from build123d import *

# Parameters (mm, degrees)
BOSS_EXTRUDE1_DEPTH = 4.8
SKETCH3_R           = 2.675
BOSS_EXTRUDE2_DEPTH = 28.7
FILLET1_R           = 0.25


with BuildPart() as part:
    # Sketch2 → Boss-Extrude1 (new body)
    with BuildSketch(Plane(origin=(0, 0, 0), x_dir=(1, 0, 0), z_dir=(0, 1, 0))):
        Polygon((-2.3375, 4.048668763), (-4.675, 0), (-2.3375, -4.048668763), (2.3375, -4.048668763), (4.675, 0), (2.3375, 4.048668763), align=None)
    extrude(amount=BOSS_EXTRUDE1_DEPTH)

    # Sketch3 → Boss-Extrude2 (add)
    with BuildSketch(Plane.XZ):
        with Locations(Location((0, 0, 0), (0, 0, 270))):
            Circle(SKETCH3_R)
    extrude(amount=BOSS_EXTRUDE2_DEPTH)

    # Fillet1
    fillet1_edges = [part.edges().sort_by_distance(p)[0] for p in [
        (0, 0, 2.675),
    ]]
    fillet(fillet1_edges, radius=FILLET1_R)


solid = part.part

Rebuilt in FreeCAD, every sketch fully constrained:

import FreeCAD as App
import Part
import Sketcher
from FreeCAD import Vector
Q = App.Units.Quantity


def edges_at(feature, points):
    """Names of the edges that pass closest to the given points."""
    edges = feature.Shape.Edges
    near = lambda p: min(range(len(edges)), key=lambda i: edges[i].distToShape(Part.Vertex(*p))[0])
    return sorted({f"Edge{near(p) + 1}" for p in points})

doc = App.newDocument("Part")
body = doc.addObject("PartDesign::Body", "Body")

sketch1 = body.newObject("Sketcher::SketchObject", "Sketch")
sketch1.AttachmentSupport = (doc.getObject("XZ_Plane"), [""])
sketch1.MapMode = "FlatFace"
sketch1.addGeometry(Part.LineSegment(Vector(-2.3, -4, 0), Vector(-4.7, 0, 0)), False)
sketch1.addGeometry(Part.LineSegment(Vector(-4.7, 0, 0), Vector(-2.3, 4, 0)), False)
sketch1.addGeometry(Part.LineSegment(Vector(-2.3, 4, 0), Vector(2.3, 4, 0)), False)
sketch1.addGeometry(Part.LineSegment(Vector(2.3, 4, 0), Vector(4.7, 0, 0)), False)
sketch1.addGeometry(Part.LineSegment(Vector(4.7, 0, 0), Vector(2.3, -4, 0)), False)
sketch1.addGeometry(Part.LineSegment(Vector(2.3, -4, 0), Vector(-2.3, -4, 0)), False)
sketch1.addConstraint(Sketcher.Constraint("Coincident", 0, 2, 1, 1))
sketch1.addConstraint(Sketcher.Constraint("Coincident", 1, 2, 2, 1))
sketch1.addConstraint(Sketcher.Constraint("Coincident", 2, 2, 3, 1))
sketch1.addConstraint(Sketcher.Constraint("Coincident", 3, 2, 4, 1))
sketch1.addConstraint(Sketcher.Constraint("Coincident", 4, 2, 5, 1))
sketch1.addConstraint(Sketcher.Constraint("Coincident", 5, 2, 0, 1))
sketch1.addConstraint(Sketcher.Constraint("Horizontal", 2))
sketch1.addConstraint(Sketcher.Constraint("Horizontal", 5))
sketch1.addConstraint(Sketcher.Constraint("Symmetric", 0, 2, 3, 2, -1, 1))
sketch1.addConstraint(Sketcher.Constraint("Symmetric", 1, 2, 4, 2, -1, 1))
sketch1.addConstraint(Sketcher.Constraint("PointOnObject", 0, 2, -1))
sketch1.addConstraint(Sketcher.Constraint("Parallel", 0, 3))
sketch1.addConstraint(Sketcher.Constraint("Vertical", 2, 2, 4, 2))
sketch1.addConstraint(Sketcher.Constraint("Angle", 0, Q("120 deg")))
sketch1.addConstraint(Sketcher.Constraint("DistanceX", 2, 1, 2, 2, 4.675))
sketch1.addConstraint(Sketcher.Constraint("DistanceX", 0, 2, 3, 2, 9.35))
pad1 = body.newObject("PartDesign::Pad", "Pad")
pad1.Profile = sketch1
pad1.Length = 4.8
pad1.Reversed = True

sketch2 = body.newObject("Sketcher::SketchObject", "Sketch001")
sketch2.AttachmentSupport = (doc.getObject("XZ_Plane"), [""])
sketch2.MapMode = "FlatFace"
sketch2.addGeometry(Part.Circle(Vector(0, 0, 0), Vector(0, 0, 1), 2.7), False)
sketch2.addConstraint(Sketcher.Constraint("Coincident", 0, 3, -1, 1))
sketch2.addConstraint(Sketcher.Constraint("Diameter", 0, 5.35))
pad2 = body.newObject("PartDesign::Pad", "Pad001")
pad2.Profile = sketch2
pad2.Length = 28.7
doc.recompute()

fillet = body.newObject("PartDesign::Fillet", "Fillet")
fillet.Base = (pad2, edges_at(pad2, [(0, 0, 2.675)]))
fillet.Radius = 0.25

doc.recompute()
